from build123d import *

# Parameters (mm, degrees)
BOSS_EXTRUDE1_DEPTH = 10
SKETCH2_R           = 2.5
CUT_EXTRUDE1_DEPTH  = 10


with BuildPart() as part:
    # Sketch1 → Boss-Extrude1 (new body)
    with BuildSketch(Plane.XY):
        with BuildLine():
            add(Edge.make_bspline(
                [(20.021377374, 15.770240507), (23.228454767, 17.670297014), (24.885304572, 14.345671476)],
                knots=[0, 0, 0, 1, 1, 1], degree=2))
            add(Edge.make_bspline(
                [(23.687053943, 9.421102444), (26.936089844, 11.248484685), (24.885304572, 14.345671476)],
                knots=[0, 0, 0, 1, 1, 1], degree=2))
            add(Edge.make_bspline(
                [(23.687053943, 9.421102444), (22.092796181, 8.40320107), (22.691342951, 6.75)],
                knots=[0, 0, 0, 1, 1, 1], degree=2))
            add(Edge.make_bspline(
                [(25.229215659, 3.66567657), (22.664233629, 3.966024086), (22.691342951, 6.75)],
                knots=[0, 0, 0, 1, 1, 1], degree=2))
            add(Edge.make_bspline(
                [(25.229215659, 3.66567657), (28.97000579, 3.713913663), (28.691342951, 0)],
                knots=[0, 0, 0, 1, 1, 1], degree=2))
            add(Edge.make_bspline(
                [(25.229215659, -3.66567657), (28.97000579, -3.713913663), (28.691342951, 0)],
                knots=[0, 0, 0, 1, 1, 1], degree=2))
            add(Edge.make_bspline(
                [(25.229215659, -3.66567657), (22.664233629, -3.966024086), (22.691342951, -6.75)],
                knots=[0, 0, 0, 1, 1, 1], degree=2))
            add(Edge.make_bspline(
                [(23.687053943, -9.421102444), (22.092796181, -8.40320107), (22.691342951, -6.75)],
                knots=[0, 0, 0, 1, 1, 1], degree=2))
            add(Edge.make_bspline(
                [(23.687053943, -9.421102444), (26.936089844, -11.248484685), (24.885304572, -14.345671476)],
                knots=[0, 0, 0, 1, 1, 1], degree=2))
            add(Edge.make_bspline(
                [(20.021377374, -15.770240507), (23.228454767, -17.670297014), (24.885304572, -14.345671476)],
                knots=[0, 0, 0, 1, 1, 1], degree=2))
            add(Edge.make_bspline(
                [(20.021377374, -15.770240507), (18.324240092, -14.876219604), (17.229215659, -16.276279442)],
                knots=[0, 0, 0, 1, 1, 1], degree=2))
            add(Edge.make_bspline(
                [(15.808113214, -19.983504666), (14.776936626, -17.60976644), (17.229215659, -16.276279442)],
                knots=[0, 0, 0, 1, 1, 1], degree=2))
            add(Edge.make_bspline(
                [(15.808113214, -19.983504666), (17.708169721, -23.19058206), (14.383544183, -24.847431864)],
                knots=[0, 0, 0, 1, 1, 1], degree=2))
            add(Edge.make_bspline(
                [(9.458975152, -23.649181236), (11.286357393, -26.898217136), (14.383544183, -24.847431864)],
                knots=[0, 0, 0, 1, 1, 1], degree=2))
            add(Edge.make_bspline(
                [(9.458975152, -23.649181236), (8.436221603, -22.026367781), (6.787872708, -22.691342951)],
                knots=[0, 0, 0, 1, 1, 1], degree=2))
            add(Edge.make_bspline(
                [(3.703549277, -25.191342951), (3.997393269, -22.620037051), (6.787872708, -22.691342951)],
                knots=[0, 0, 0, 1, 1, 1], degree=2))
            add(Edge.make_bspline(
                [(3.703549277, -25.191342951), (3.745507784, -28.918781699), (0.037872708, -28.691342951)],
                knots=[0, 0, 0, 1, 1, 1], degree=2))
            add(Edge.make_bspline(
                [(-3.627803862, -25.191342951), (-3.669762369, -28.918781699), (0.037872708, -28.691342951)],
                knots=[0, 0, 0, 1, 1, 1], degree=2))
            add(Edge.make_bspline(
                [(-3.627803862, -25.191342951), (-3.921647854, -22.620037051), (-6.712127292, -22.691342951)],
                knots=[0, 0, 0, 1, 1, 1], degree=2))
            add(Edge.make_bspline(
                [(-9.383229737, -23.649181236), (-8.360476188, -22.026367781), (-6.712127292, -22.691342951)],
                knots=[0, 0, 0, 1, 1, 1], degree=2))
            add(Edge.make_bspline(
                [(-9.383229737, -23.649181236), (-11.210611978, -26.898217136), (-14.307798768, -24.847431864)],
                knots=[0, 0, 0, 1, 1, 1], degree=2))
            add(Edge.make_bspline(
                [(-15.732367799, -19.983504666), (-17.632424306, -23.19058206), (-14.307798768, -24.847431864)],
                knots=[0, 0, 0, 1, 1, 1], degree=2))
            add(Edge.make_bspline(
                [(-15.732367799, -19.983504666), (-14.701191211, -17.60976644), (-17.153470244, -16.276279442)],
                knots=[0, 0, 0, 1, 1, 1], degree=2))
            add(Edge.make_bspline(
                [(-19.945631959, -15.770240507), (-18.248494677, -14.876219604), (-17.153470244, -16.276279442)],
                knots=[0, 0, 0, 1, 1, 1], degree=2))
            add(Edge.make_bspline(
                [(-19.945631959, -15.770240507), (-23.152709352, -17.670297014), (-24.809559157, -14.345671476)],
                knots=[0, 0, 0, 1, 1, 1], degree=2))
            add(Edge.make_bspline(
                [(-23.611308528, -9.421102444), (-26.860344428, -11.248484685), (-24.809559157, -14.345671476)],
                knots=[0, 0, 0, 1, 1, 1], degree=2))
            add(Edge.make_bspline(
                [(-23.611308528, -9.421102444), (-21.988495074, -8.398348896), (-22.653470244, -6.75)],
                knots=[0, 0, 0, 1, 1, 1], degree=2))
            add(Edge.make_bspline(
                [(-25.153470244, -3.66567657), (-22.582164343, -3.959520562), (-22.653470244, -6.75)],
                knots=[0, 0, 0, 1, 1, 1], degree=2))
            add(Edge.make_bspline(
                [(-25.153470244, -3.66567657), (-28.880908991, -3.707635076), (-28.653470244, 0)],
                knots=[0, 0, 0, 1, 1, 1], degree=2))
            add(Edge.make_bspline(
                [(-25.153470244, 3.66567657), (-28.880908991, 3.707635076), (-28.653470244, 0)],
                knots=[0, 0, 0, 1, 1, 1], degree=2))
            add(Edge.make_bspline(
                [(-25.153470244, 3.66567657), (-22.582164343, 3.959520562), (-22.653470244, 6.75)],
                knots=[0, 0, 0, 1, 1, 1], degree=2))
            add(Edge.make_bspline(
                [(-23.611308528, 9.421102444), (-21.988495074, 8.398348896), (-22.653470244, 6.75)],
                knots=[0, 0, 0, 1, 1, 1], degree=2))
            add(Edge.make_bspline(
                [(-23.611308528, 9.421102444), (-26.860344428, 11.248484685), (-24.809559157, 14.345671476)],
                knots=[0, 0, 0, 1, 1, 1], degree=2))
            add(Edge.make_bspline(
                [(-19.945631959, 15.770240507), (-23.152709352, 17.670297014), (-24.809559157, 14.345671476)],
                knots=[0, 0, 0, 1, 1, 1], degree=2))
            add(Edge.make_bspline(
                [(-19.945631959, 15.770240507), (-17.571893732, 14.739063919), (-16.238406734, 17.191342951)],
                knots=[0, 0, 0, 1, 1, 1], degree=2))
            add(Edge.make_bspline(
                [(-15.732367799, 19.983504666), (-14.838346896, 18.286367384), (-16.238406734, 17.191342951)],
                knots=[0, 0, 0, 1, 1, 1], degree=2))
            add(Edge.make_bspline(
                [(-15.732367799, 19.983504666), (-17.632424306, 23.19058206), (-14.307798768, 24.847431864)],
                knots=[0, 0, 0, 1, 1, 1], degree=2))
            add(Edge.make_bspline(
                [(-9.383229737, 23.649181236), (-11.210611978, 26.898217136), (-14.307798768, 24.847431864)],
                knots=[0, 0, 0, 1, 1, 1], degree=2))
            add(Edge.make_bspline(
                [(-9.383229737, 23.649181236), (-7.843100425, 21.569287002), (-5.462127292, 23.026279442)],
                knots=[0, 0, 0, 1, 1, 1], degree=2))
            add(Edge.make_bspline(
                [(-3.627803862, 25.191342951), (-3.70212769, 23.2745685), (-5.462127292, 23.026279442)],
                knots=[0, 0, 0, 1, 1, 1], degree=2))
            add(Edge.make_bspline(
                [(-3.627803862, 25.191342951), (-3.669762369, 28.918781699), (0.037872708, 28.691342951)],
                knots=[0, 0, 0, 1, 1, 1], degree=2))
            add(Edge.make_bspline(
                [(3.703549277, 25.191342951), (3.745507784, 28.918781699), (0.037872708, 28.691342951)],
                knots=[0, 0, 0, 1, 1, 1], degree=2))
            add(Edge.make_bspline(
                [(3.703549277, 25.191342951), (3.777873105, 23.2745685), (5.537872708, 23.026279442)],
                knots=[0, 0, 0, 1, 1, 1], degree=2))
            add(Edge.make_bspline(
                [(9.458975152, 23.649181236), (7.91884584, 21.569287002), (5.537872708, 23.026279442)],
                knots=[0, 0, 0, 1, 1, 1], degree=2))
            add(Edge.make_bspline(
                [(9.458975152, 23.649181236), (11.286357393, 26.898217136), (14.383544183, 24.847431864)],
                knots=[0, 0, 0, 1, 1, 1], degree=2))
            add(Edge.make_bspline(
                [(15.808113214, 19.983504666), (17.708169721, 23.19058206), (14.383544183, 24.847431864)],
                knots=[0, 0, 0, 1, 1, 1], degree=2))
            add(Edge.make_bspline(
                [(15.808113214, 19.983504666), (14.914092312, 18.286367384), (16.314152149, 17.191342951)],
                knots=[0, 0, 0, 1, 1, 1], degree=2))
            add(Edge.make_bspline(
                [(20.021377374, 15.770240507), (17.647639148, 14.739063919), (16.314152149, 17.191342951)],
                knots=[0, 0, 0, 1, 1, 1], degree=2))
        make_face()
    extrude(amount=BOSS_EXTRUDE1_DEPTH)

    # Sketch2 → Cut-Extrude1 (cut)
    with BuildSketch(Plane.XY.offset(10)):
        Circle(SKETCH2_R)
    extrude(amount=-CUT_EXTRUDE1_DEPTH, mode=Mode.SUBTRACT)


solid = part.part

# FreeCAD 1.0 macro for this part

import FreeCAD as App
import Part
import Sketcher
from FreeCAD import Vector

doc = App.newDocument("Part")
body = doc.addObject("PartDesign::Body", "Body")

# Sketch on XY plane
sketch1 = body.newObject("Sketcher::SketchObject", "Sketch")
sketch1.AttachmentSupport = (doc.getObject("XY_Plane"), [""])
sketch1.MapMode = "FlatFace"
sketch1.addGeometry(Part.BSplineCurve([Vector(20.021377, 15.770241, 0), Vector(23.228455, 17.670297, 0), Vector(24.885305, 14.345671, 0)], [3, 3], [0, 1], False, 2, [1, 1, 1], False), False)
sketch1.addGeometry(Part.BSplineCurve([Vector(20.021377, 15.770241, 0), Vector(17.647639, 14.739064, 0), Vector(16.314152, 17.191343, 0)], [3, 3], [0, 1], False, 2, [1, 1, 1], False), False)
sketch1.addGeometry(Part.BSplineCurve([Vector(15.808113, 19.983505, 0), Vector(14.914092, 18.286367, 0), Vector(16.314152, 17.191343, 0)], [3, 3], [0, 1], False, 2, [1, 1, 1], False), False)
sketch1.addGeometry(Part.BSplineCurve([Vector(15.808113, 19.983505, 0), Vector(17.70817, 23.190582, 0), Vector(14.383544, 24.847432, 0)], [3, 3], [0, 1], False, 2, [1, 1, 1], False), False)
sketch1.addGeometry(Part.BSplineCurve([Vector(9.458975, 23.649181, 0), Vector(11.286357, 26.898217, 0), Vector(14.383544, 24.847432, 0)], [3, 3], [0, 1], False, 2, [1, 1, 1], False), False)
sketch1.addGeometry(Part.BSplineCurve([Vector(9.458975, 23.649181, 0), Vector(7.918846, 21.569287, 0), Vector(5.537873, 23.026279, 0)], [3, 3], [0, 1], False, 2, [1, 1, 1], False), False)
sketch1.addGeometry(Part.BSplineCurve([Vector(3.703549, 25.191343, 0), Vector(3.777873, 23.274569, 0), Vector(5.537873, 23.026279, 0)], [3, 3], [0, 1], False, 2, [1, 1, 1], False), False)
sketch1.addGeometry(Part.BSplineCurve([Vector(3.703549, 25.191343, 0), Vector(3.745508, 28.918782, 0), Vector(0.037873, 28.691343, 0)], [3, 3], [0, 1], False, 2, [1, 1, 1], False), False)
sketch1.addGeometry(Part.BSplineCurve([Vector(-3.627804, 25.191343, 0), Vector(-3.669762, 28.918782, 0), Vector(0.037873, 28.691343, 0)], [3, 3], [0, 1], False, 2, [1, 1, 1], False), False)
sketch1.addGeometry(Part.BSplineCurve([Vector(-3.627804, 25.191343, 0), Vector(-3.702128, 23.274569, 0), Vector(-5.462127, 23.026279, 0)], [3, 3], [0, 1], False, 2, [1, 1, 1], False), False)
sketch1.addGeometry(Part.BSplineCurve([Vector(-9.38323, 23.649181, 0), Vector(-7.8431, 21.569287, 0), Vector(-5.462127, 23.026279, 0)], [3, 3], [0, 1], False, 2, [1, 1, 1], False), False)
sketch1.addGeometry(Part.BSplineCurve([Vector(-9.38323, 23.649181, 0), Vector(-11.210612, 26.898217, 0), Vector(-14.307799, 24.847432, 0)], [3, 3], [0, 1], False, 2, [1, 1, 1], False), False)
sketch1.addGeometry(Part.BSplineCurve([Vector(-15.732368, 19.983505, 0), Vector(-17.632424, 23.190582, 0), Vector(-14.307799, 24.847432, 0)], [3, 3], [0, 1], False, 2, [1, 1, 1], False), False)
sketch1.addGeometry(Part.BSplineCurve([Vector(-15.732368, 19.983505, 0), Vector(-14.838347, 18.286367, 0), Vector(-16.238407, 17.191343, 0)], [3, 3], [0, 1], False, 2, [1, 1, 1], False), False)
sketch1.addGeometry(Part.BSplineCurve([Vector(-19.945632, 15.770241, 0), Vector(-17.571894, 14.739064, 0), Vector(-16.238407, 17.191343, 0)], [3, 3], [0, 1], False, 2, [1, 1, 1], False), False)
sketch1.addGeometry(Part.BSplineCurve([Vector(-19.945632, 15.770241, 0), Vector(-23.152709, 17.670297, 0), Vector(-24.809559, 14.345671, 0)], [3, 3], [0, 1], False, 2, [1, 1, 1], False), False)
sketch1.addGeometry(Part.BSplineCurve([Vector(-23.611309, 9.421102, 0), Vector(-26.860344, 11.248485, 0), Vector(-24.809559, 14.345671, 0)], [3, 3], [0, 1], False, 2, [1, 1, 1], False), False)
sketch1.addGeometry(Part.BSplineCurve([Vector(-23.611309, 9.421102, 0), Vector(-21.988495, 8.398349, 0), Vector(-22.65347, 6.75, 0)], [3, 3], [0, 1], False, 2, [1, 1, 1], False), False)
sketch1.addGeometry(Part.BSplineCurve([Vector(-25.15347, 3.665677, 0), Vector(-22.582164, 3.959521, 0), Vector(-22.65347, 6.75, 0)], [3, 3], [0, 1], False, 2, [1, 1, 1], False), False)
sketch1.addGeometry(Part.BSplineCurve([Vector(-25.15347, 3.665677, 0), Vector(-28.880909, 3.707635, 0), Vector(-28.65347, 0, 0)], [3, 3], [0, 1], False, 2, [1, 1, 1], False), False)
sketch1.addGeometry(Part.BSplineCurve([Vector(-25.15347, -3.665677, 0), Vector(-28.880909, -3.707635, 0), Vector(-28.65347, 0, 0)], [3, 3], [0, 1], False, 2, [1, 1, 1], False), False)
sketch1.addGeometry(Part.BSplineCurve([Vector(-25.15347, -3.665677, 0), Vector(-22.582164, -3.959521, 0), Vector(-22.65347, -6.75, 0)], [3, 3], [0, 1], False, 2, [1, 1, 1], False), False)
sketch1.addGeometry(Part.BSplineCurve([Vector(-23.611309, -9.421102, 0), Vector(-21.988495, -8.398349, 0), Vector(-22.65347, -6.75, 0)], [3, 3], [0, 1], False, 2, [1, 1, 1], False), False)
sketch1.addGeometry(Part.BSplineCurve([Vector(-23.611309, -9.421102, 0), Vector(-26.860344, -11.248485, 0), Vector(-24.809559, -14.345671, 0)], [3, 3], [0, 1], False, 2, [1, 1, 1], False), False)
sketch1.addGeometry(Part.BSplineCurve([Vector(-19.945632, -15.770241, 0), Vector(-23.152709, -17.670297, 0), Vector(-24.809559, -14.345671, 0)], [3, 3], [0, 1], False, 2, [1, 1, 1], False), False)
sketch1.addGeometry(Part.BSplineCurve([Vector(-19.945632, -15.770241, 0), Vector(-18.248495, -14.87622, 0), Vector(-17.15347, -16.276279, 0)], [3, 3], [0, 1], False, 2, [1, 1, 1], False), False)
sketch1.addGeometry(Part.BSplineCurve([Vector(-15.732368, -19.983505, 0), Vector(-14.701191, -17.609766, 0), Vector(-17.15347, -16.276279, 0)], [3, 3], [0, 1], False, 2, [1, 1, 1], False), False)
sketch1.addGeometry(Part.BSplineCurve([Vector(-15.732368, -19.983505, 0), Vector(-17.632424, -23.190582, 0), Vector(-14.307799, -24.847432, 0)], [3, 3], [0, 1], False, 2, [1, 1, 1], False), False)
sketch1.addGeometry(Part.BSplineCurve([Vector(-9.38323, -23.649181, 0), Vector(-11.210612, -26.898217, 0), Vector(-14.307799, -24.847432, 0)], [3, 3], [0, 1], False, 2, [1, 1, 1], False), False)
sketch1.addGeometry(Part.BSplineCurve([Vector(-9.38323, -23.649181, 0), Vector(-8.360476, -22.026368, 0), Vector(-6.712127, -22.691343, 0)], [3, 3], [0, 1], False, 2, [1, 1, 1], False), False)
sketch1.addGeometry(Part.BSplineCurve([Vector(-3.627804, -25.191343, 0), Vector(-3.921648, -22.620037, 0), Vector(-6.712127, -22.691343, 0)], [3, 3], [0, 1], False, 2, [1, 1, 1], False), False)
sketch1.addGeometry(Part.BSplineCurve([Vector(-3.627804, -25.191343, 0), Vector(-3.669762, -28.918782, 0), Vector(0.037873, -28.691343, 0)], [3, 3], [0, 1], False, 2, [1, 1, 1], False), False)
sketch1.addGeometry(Part.BSplineCurve([Vector(3.703549, -25.191343, 0), Vector(3.745508, -28.918782, 0), Vector(0.037873, -28.691343, 0)], [3, 3], [0, 1], False, 2, [1, 1, 1], False), False)
sketch1.addGeometry(Part.BSplineCurve([Vector(3.703549, -25.191343, 0), Vector(3.997393, -22.620037, 0), Vector(6.787873, -22.691343, 0)], [3, 3], [0, 1], False, 2, [1, 1, 1], False), False)
sketch1.addGeometry(Part.BSplineCurve([Vector(9.458975, -23.649181, 0), Vector(8.436222, -22.026368, 0), Vector(6.787873, -22.691343, 0)], [3, 3], [0, 1], False, 2, [1, 1, 1], False), False)
sketch1.addGeometry(Part.BSplineCurve([Vector(9.458975, -23.649181, 0), Vector(11.286357, -26.898217, 0), Vector(14.383544, -24.847432, 0)], [3, 3], [0, 1], False, 2, [1, 1, 1], False), False)
sketch1.addGeometry(Part.BSplineCurve([Vector(15.808113, -19.983505, 0), Vector(17.70817, -23.190582, 0), Vector(14.383544, -24.847432, 0)], [3, 3], [0, 1], False, 2, [1, 1, 1], False), False)
sketch1.addGeometry(Part.BSplineCurve([Vector(15.808113, -19.983505, 0), Vector(14.776937, -17.609766, 0), Vector(17.229216, -16.276279, 0)], [3, 3], [0, 1], False, 2, [1, 1, 1], False), False)
sketch1.addGeometry(Part.BSplineCurve([Vector(20.021377, -15.770241, 0), Vector(18.32424, -14.87622, 0), Vector(17.229216, -16.276279, 0)], [3, 3], [0, 1], False, 2, [1, 1, 1], False), False)
sketch1.addGeometry(Part.BSplineCurve([Vector(20.021377, -15.770241, 0), Vector(23.228455, -17.670297, 0), Vector(24.885305, -14.345671, 0)], [3, 3], [0, 1], False, 2, [1, 1, 1], False), False)
sketch1.addGeometry(Part.BSplineCurve([Vector(23.687054, -9.421102, 0), Vector(26.93609, -11.248485, 0), Vector(24.885305, -14.345671, 0)], [3, 3], [0, 1], False, 2, [1, 1, 1], False), False)
sketch1.addGeometry(Part.BSplineCurve([Vector(23.687054, -9.421102, 0), Vector(22.092796, -8.403201, 0), Vector(22.691343, -6.75, 0)], [3, 3], [0, 1], False, 2, [1, 1, 1], False), False)
sketch1.addGeometry(Part.BSplineCurve([Vector(25.229216, -3.665677, 0), Vector(22.664234, -3.966024, 0), Vector(22.691343, -6.75, 0)], [3, 3], [0, 1], False, 2, [1, 1, 1], False), False)
sketch1.addGeometry(Part.BSplineCurve([Vector(25.229216, -3.665677, 0), Vector(28.970006, -3.713914, 0), Vector(28.691343, 0, 0)], [3, 3], [0, 1], False, 2, [1, 1, 1], False), False)
sketch1.addGeometry(Part.BSplineCurve([Vector(25.229216, 3.665677, 0), Vector(28.970006, 3.713914, 0), Vector(28.691343, 0, 0)], [3, 3], [0, 1], False, 2, [1, 1, 1], False), False)
sketch1.addGeometry(Part.BSplineCurve([Vector(25.229216, 3.665677, 0), Vector(22.664234, 3.966024, 0), Vector(22.691343, 6.75, 0)], [3, 3], [0, 1], False, 2, [1, 1, 1], False), False)
sketch1.addGeometry(Part.BSplineCurve([Vector(23.687054, 9.421102, 0), Vector(22.092796, 8.403201, 0), Vector(22.691343, 6.75, 0)], [3, 3], [0, 1], False, 2, [1, 1, 1], False), False)
sketch1.addGeometry(Part.BSplineCurve([Vector(23.687054, 9.421102, 0), Vector(26.93609, 11.248485, 0), Vector(24.885305, 14.345671, 0)], [3, 3], [0, 1], False, 2, [1, 1, 1], False), False)
sketch1.addConstraint(Sketcher.Constraint("Block", 0))
sketch1.addConstraint(Sketcher.Constraint("Block", 1))
sketch1.addConstraint(Sketcher.Constraint("Block", 2))
sketch1.addConstraint(Sketcher.Constraint("Block", 3))
sketch1.addConstraint(Sketcher.Constraint("Block", 4))
sketch1.addConstraint(Sketcher.Constraint("Block", 5))
sketch1.addConstraint(Sketcher.Constraint("Block", 6))
sketch1.addConstraint(Sketcher.Constraint("Block", 7))
sketch1.addConstraint(Sketcher.Constraint("Block", 8))
sketch1.addConstraint(Sketcher.Constraint("Block", 9))
sketch1.addConstraint(Sketcher.Constraint("Block", 10))
sketch1.addConstraint(Sketcher.Constraint("Block", 11))
sketch1.addConstraint(Sketcher.Constraint("Block", 12))
sketch1.addConstraint(Sketcher.Constraint("Block", 13))
sketch1.addConstraint(Sketcher.Constraint("Block", 14))
sketch1.addConstraint(Sketcher.Constraint("Block", 15))
sketch1.addConstraint(Sketcher.Constraint("Block", 16))
sketch1.addConstraint(Sketcher.Constraint("Block", 17))
sketch1.addConstraint(Sketcher.Constraint("Block", 18))
sketch1.addConstraint(Sketcher.Constraint("Block", 19))
sketch1.addConstraint(Sketcher.Constraint("Block", 20))
sketch1.addConstraint(Sketcher.Constraint("Block", 21))
sketch1.addConstraint(Sketcher.Constraint("Block", 22))
sketch1.addConstraint(Sketcher.Constraint("Block", 23))
sketch1.addConstraint(Sketcher.Constraint("Block", 24))
sketch1.addConstraint(Sketcher.Constraint("Block", 25))
sketch1.addConstraint(Sketcher.Constraint("Block", 26))
sketch1.addConstraint(Sketcher.Constraint("Block", 27))
sketch1.addConstraint(Sketcher.Constraint("Block", 28))
sketch1.addConstraint(Sketcher.Constraint("Block", 29))
sketch1.addConstraint(Sketcher.Constraint("Block", 30))
sketch1.addConstraint(Sketcher.Constraint("Block", 31))
sketch1.addConstraint(Sketcher.Constraint("Block", 32))
sketch1.addConstraint(Sketcher.Constraint("Block", 33))
sketch1.addConstraint(Sketcher.Constraint("Block", 34))
sketch1.addConstraint(Sketcher.Constraint("Block", 35))
sketch1.addConstraint(Sketcher.Constraint("Block", 36))
sketch1.addConstraint(Sketcher.Constraint("Block", 37))
sketch1.addConstraint(Sketcher.Constraint("Block", 38))
sketch1.addConstraint(Sketcher.Constraint("Block", 39))
sketch1.addConstraint(Sketcher.Constraint("Block", 40))
sketch1.addConstraint(Sketcher.Constraint("Block", 41))
sketch1.addConstraint(Sketcher.Constraint("Block", 42))
sketch1.addConstraint(Sketcher.Constraint("Block", 43))
sketch1.addConstraint(Sketcher.Constraint("Block", 44))
sketch1.addConstraint(Sketcher.Constraint("Block", 45))
sketch1.addConstraint(Sketcher.Constraint("Block", 46))
sketch1.addConstraint(Sketcher.Constraint("Block", 47))
pad1 = body.newObject("PartDesign::Pad", "Pad")
pad1.Profile = sketch1
pad1.Length = 10

# Sketch on XY plane
sketch2 = body.newObject("Sketcher::SketchObject", "Sketch001")
sketch2.AttachmentSupport = (doc.getObject("XY_Plane"), [""])
sketch2.MapMode = "FlatFace"
sketch2.AttachmentOffset = App.Placement(Vector(0, 0, 10), App.Rotation())
sketch2.addGeometry(Part.Circle(Vector(0, 0, 0), Vector(0, 0, 1), 2.5), False)
sketch2.addConstraint(Sketcher.Constraint("Coincident", 0, 3, -1, 1))
sketch2.addConstraint(Sketcher.Constraint("Diameter", 0, 5.0))
pocket1 = body.newObject("PartDesign::Pocket", "Pocket")
pocket1.Profile = sketch2
pocket1.Length = 10

doc.recompute()
